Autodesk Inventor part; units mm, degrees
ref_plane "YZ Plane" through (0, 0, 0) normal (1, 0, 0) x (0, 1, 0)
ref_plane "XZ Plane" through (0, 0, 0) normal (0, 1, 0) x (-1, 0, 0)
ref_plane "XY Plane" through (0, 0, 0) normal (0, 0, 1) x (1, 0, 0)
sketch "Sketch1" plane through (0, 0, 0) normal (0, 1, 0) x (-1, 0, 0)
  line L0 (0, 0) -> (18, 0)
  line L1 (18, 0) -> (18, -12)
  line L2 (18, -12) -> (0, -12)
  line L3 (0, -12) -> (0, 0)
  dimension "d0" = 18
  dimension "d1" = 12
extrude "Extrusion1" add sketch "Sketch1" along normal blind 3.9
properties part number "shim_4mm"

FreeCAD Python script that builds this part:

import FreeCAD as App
import Part
import Sketcher
Q = App.Units.Quantity


def add_polygon(sketch, points):
    """Adds a closed chain of lines whose ends are joined by coincident constraints."""
    first, n = sketch.GeometryCount, len(points)
    for a, b in zip(points, points[1:] + points[:1]):
        sketch.addGeometry(Part.LineSegment(App.Vector(*a, 0), App.Vector(*b, 0)), False)
    for i in range(n):
        sketch.addConstraint(Sketcher.Constraint("Coincident", first + i, 2, first + (i + 1) % n, 1))

doc = App.newDocument("Part")
body = doc.addObject("PartDesign::Body", "Body")

# Sketch on XZ plane
sketch1 = body.newObject("Sketcher::SketchObject", "Sketch")
sketch1.AttachmentSupport = (doc.getObject("XZ_Plane"), [""])
sketch1.MapMode = "FlatFace"
add_polygon(sketch1, [(-18, 0), (0, 0), (0, -12), (-18, -12)])  # lines 0-3
sketch1.addConstraint([
    Sketcher.Constraint("Horizontal", 0),
    Sketcher.Constraint("Vertical", 1),
    Sketcher.Constraint("Horizontal", 2),
    Sketcher.Constraint("Vertical", 3),
    Sketcher.Constraint("Coincident", 0, 2, -1, 1),
    Sketcher.Constraint("DistanceX", 0, 1, 0, 2, Q("18 mm")),
    Sketcher.Constraint("DistanceY", 1, 2, 1, 1, Q("12 mm")),
])
pad1 = body.newObject("PartDesign::Pad", "Pad")
pad1.Profile = sketch1
pad1.Length = 3.9
pad1.Reversed = True

doc.recompute()
